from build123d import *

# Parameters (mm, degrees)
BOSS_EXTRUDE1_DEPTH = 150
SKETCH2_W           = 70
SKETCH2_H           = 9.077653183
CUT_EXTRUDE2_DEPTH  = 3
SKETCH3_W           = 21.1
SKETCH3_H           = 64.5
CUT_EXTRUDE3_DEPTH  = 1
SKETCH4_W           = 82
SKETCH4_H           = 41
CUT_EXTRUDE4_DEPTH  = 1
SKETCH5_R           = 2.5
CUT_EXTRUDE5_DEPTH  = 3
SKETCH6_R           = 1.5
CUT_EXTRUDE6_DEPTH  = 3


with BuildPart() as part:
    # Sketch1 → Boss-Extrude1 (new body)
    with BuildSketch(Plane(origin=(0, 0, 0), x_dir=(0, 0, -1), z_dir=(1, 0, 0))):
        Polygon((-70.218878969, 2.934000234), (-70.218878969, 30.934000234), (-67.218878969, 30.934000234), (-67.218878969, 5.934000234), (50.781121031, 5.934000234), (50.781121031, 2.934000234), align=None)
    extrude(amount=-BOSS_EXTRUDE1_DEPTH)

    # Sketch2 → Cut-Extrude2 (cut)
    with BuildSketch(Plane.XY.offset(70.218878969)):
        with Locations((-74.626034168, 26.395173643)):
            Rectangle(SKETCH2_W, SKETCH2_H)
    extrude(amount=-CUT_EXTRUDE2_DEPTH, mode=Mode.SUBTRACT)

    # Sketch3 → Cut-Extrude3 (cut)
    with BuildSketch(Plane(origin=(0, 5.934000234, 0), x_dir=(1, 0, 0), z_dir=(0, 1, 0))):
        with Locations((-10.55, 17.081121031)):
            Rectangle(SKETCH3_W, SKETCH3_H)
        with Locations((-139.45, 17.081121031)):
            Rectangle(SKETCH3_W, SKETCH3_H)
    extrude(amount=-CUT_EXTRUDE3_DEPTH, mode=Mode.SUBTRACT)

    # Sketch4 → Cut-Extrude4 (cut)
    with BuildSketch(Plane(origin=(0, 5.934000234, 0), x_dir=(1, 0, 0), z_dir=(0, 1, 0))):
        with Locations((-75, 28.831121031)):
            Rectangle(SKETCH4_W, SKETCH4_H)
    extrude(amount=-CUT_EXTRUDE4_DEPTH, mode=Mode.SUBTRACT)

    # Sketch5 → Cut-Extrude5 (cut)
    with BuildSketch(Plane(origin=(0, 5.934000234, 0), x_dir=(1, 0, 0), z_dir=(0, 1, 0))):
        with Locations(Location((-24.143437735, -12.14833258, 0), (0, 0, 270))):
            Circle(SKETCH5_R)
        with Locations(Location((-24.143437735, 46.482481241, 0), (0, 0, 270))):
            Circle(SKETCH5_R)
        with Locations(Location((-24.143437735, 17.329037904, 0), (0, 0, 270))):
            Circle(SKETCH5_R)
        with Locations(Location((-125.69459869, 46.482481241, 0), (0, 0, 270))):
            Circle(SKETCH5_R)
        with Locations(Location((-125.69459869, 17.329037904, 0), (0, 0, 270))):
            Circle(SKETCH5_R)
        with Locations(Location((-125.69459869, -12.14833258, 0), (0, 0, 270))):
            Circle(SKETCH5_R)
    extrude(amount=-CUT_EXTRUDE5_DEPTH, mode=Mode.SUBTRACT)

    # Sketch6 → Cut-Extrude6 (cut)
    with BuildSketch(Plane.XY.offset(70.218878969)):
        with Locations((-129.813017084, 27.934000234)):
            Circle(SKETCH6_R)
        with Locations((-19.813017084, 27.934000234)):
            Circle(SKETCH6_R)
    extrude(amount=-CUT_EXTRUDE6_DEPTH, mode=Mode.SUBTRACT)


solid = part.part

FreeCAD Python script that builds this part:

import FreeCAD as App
import Part
import Sketcher

doc = App.newDocument("Part")
params = doc.addObject("Spreadsheet::Sheet", "Params")
for row, (alias, value) in enumerate([
    ("sketch1_width", "28 mm"),
    ("sketch1_width2", "3 mm"),
    ("sketch1_height", "121 mm"),
    ("pad1_length", "150 mm"),
    ("sketch2_width", "70 mm"),
    ("pocket1_length", "3 mm"),
    ("sketch3_width", "21.1 mm"),
    ("sketch3_height", "64.5 mm"),
    ("pocket2_length", "1 mm"),
    ("sketch4_width", "82 mm"),
    ("sketch4_height", "41 mm"),
    ("pocket3_length", "1 mm"),
    ("sketch5_diameter", "5 mm"),
    ("pocket4_length", "3 mm"),
    ("sketch6_diameter", "3 mm"),
    ("pocket5_length", "3 mm"),
], start=1):
    params.set(f"A{row}", alias)
    params.set(f"B{row}", "=" + value)
    params.setAlias(f"B{row}", alias)

body = doc.addObject("PartDesign::Body", "Body")

# Sketch on YZ plane
sketch1 = body.newObject("Sketcher::SketchObject", "Sketch")
sketch1.AttachmentSupport = (doc.getObject("YZ_Plane"), [""])
sketch1.MapMode = "FlatFace"
sketch1.addGeometry([
    Part.LineSegment(App.Vector(30.9, 70.2, 0), App.Vector(2.9, 70.2, 0)),  # 0
    Part.LineSegment(App.Vector(2.9, 70.2, 0), App.Vector(2.9, -50.8, 0)),  # 1
    Part.LineSegment(App.Vector(2.9, -50.8, 0), App.Vector(5.9, -50.8, 0)),  # 2
    Part.LineSegment(App.Vector(5.9, -50.8, 0), App.Vector(5.9, 67.2, 0)),  # 3
    Part.LineSegment(App.Vector(5.9, 67.2, 0), App.Vector(30.9, 67.2, 0)),  # 4
    Part.LineSegment(App.Vector(30.9, 67.2, 0), App.Vector(30.9, 70.2, 0)),  # 5
], False)
sketch1.addConstraint([
    Sketcher.Constraint("Coincident", 0, 2, 1, 1),
    Sketcher.Constraint("Coincident", 1, 2, 2, 1),
    Sketcher.Constraint("Coincident", 2, 2, 3, 1),
    Sketcher.Constraint("Coincident", 3, 2, 4, 1),
    Sketcher.Constraint("Coincident", 4, 2, 5, 1),
    Sketcher.Constraint("Coincident", 5, 2, 0, 1),
    Sketcher.Constraint("Horizontal", 0),
    Sketcher.Constraint("Vertical", 1),
    Sketcher.Constraint("Horizontal", 2),
    Sketcher.Constraint("Vertical", 3),
    Sketcher.Constraint("Horizontal", 4),
    Sketcher.Constraint("Vertical", 5),
    Sketcher.Constraint("Equal", 2, 5),
    Sketcher.Constraint("DistanceX", 0, 2, 0, 1, 28.0),
    Sketcher.Constraint("DistanceX", 2, 1, 2, 2, 3.0),
    Sketcher.Constraint("DistanceY", 1, 2, 1, 1, 121.0),
    Sketcher.Constraint("DistanceX", -1, 1, 0, 2, 2.934),
    Sketcher.Constraint("DistanceY", -1, 1, 0, 2, 70.218879),
])
sketch1.setExpression("Constraints[13]", "Params.sketch1_width")
sketch1.setExpression("Constraints[14]", "Params.sketch1_width2")
sketch1.setExpression("Constraints[15]", "Params.sketch1_height")
pad1 = body.newObject("PartDesign::Pad", "Pad")
pad1.Profile = sketch1
pad1.setExpression("Length", "Params.pad1_length")
pad1.Reversed = True

# Sketch on XY plane
sketch2 = body.newObject("Sketcher::SketchObject", "Sketch001")
sketch2.AttachmentSupport = (doc.getObject("XY_Plane"), [""])
sketch2.MapMode = "FlatFace"
sketch2.AttachmentOffset = App.Placement(App.Vector(0, 0, 70.218879), App.Rotation())
sketch2.addGeometry([
    Part.LineSegment(App.Vector(-110, 31, 0), App.Vector(-110, 22, 0)),
    Part.LineSegment(App.Vector(-110, 22, 0), App.Vector(-40, 22, 0)),
    Part.LineSegment(App.Vector(-40, 22, 0), App.Vector(-40, 31, 0)),
    Part.LineSegment(App.Vector(-40, 31, 0), App.Vector(-110, 31, 0)),
], False)
sketch2.addConstraint([
    Sketcher.Constraint("Coincident", 0, 2, 1, 1),
    Sketcher.Constraint("Coincident", 1, 2, 2, 1),
    Sketcher.Constraint("Coincident", 2, 2, 3, 1),
    Sketcher.Constraint("Coincident", 3, 2, 0, 1),
    Sketcher.Constraint("Vertical", 0),
    Sketcher.Constraint("Horizontal", 1),
    Sketcher.Constraint("Vertical", 2),
    Sketcher.Constraint("Horizontal", 3),
    Sketcher.Constraint("DistanceX", 1, 1, 1, 2, 70.0),
    Sketcher.Constraint("DistanceY", -1, 1, 2, 2, 30.934),
    Sketcher.Constraint("DistanceY", 0, 2, 0, 1, 9.077653),
    Sketcher.Constraint("DistanceX", 0, 2, -1, 1, 109.626034),
])
sketch2.setExpression("Constraints[8]", "Params.sketch2_width")
pocket1 = body.newObject("PartDesign::Pocket", "Pocket")
pocket1.Profile = sketch2
pocket1.setExpression("Length", "Params.pocket1_length")

# Sketch on XZ plane
sketch3 = body.newObject("Sketcher::SketchObject", "Sketch002")
sketch3.AttachmentSupport = (doc.getObject("XZ_Plane"), [""])
sketch3.MapMode = "FlatFace"
sketch3.AttachmentOffset = App.Placement(App.Vector(0, 0, -5.934), App.Rotation())
sketch3.addGeometry([
    Part.LineSegment(App.Vector(-21, -49, 0), App.Vector(-21, 15, 0)),  # 0
    Part.LineSegment(App.Vector(-21, 15, 0), App.Vector(0, 15, 0)),  # 1
    Part.LineSegment(App.Vector(0, 15, 0), App.Vector(0, -49, 0)),  # 2
    Part.LineSegment(App.Vector(0, -49, 0), App.Vector(-21, -49, 0)),  # 3
    Part.LineSegment(App.Vector(-150, -49, 0), App.Vector(-150, 15, 0)),  # 4
    Part.LineSegment(App.Vector(-150, 15, 0), App.Vector(-129, 15, 0)),  # 5
    Part.LineSegment(App.Vector(-129, 15, 0), App.Vector(-129, -49, 0)),  # 6
    Part.LineSegment(App.Vector(-129, -49, 0), App.Vector(-150, -49, 0)),  # 7
], False)
sketch3.addConstraint([
    Sketcher.Constraint("Coincident", 0, 2, 1, 1),
    Sketcher.Constraint("Coincident", 1, 2, 2, 1),
    Sketcher.Constraint("Coincident", 2, 2, 3, 1),
    Sketcher.Constraint("Coincident", 3, 2, 0, 1),
    Sketcher.Constraint("Coincident", 4, 2, 5, 1),
    Sketcher.Constraint("Coincident", 5, 2, 6, 1),
    Sketcher.Constraint("Coincident", 6, 2, 7, 1),
    Sketcher.Constraint("Coincident", 7, 2, 4, 1),
    Sketcher.Constraint("Vertical", 0),
    Sketcher.Constraint("Horizontal", 1),
    Sketcher.Constraint("Vertical", 2),
    Sketcher.Constraint("Horizontal", 3),
    Sketcher.Constraint("Vertical", 4),
    Sketcher.Constraint("Horizontal", 5),
    Sketcher.Constraint("Vertical", 6),
    Sketcher.Constraint("Horizontal", 7),
    Sketcher.Constraint("PointOnObject", 1, 2, -2),
    Sketcher.Constraint("Horizontal", 1, 2, 4, 2),
    Sketcher.Constraint("Horizontal", 3, 2, 6, 2),
    Sketcher.Constraint("Equal", 3, 5),
    Sketcher.Constraint("DistanceX", 1, 1, 1, 2, 21.1),
    Sketcher.Constraint("DistanceY", 0, 1, 0, 2, 64.5),
    Sketcher.Constraint("DistanceX", 4, 2, -1, 1, 150.0),
    Sketcher.Constraint("DistanceY", -1, 1, 0, 2, 15.168879),
])
sketch3.setExpression("Constraints[20]", "Params.sketch3_width")
sketch3.setExpression("Constraints[21]", "Params.sketch3_height")
pocket2 = body.newObject("PartDesign::Pocket", "Pocket001")
pocket2.Profile = sketch3
pocket2.setExpression("Length", "Params.pocket2_length")
pocket2.Reversed = True

# Sketch on XZ plane
sketch4 = body.newObject("Sketcher::SketchObject", "Sketch003")
sketch4.AttachmentSupport = (doc.getObject("XZ_Plane"), [""])
sketch4.MapMode = "FlatFace"
sketch4.AttachmentOffset = App.Placement(App.Vector(0, 0, -5.934), App.Rotation())
sketch4.addGeometry([
    Part.LineSegment(App.Vector(-116, -49, 0), App.Vector(-116, -8, 0)),
    Part.LineSegment(App.Vector(-116, -8, 0), App.Vector(-34, -8, 0)),
    Part.LineSegment(App.Vector(-34, -8, 0), App.Vector(-34, -49, 0)),
    Part.LineSegment(App.Vector(-34, -49, 0), App.Vector(-116, -49, 0)),
], False)
sketch4.addConstraint([
    Sketcher.Constraint("Coincident", 0, 2, 1, 1),
    Sketcher.Constraint("Coincident", 1, 2, 2, 1),
    Sketcher.Constraint("Coincident", 2, 2, 3, 1),
    Sketcher.Constraint("Coincident", 3, 2, 0, 1),
    Sketcher.Constraint("Vertical", 0),
    Sketcher.Constraint("Horizontal", 1),
    Sketcher.Constraint("Vertical", 2),
    Sketcher.Constraint("Horizontal", 3),
    Sketcher.Constraint("DistanceX", 1, 1, 1, 2, 82.0),
    Sketcher.Constraint("DistanceY", 0, 1, 0, 2, 41.0),
    Sketcher.Constraint("DistanceX", 0, 2, -1, 1, 116.0),
    Sketcher.Constraint("DistanceY", 0, 2, -1, 1, 8.331121),
])
sketch4.setExpression("Constraints[8]", "Params.sketch4_width")
sketch4.setExpression("Constraints[9]", "Params.sketch4_height")
pocket3 = body.newObject("PartDesign::Pocket", "Pocket002")
pocket3.Profile = sketch4
pocket3.setExpression("Length", "Params.pocket3_length")
pocket3.Reversed = True

# Sketch on XZ plane
sketch5 = body.newObject("Sketcher::SketchObject", "Sketch004")
sketch5.AttachmentSupport = (doc.getObject("XZ_Plane"), [""])
sketch5.MapMode = "FlatFace"
sketch5.AttachmentOffset = App.Placement(App.Vector(0, 0, -5.934), App.Rotation())
sketch5.addGeometry([
    Part.Circle(App.Vector(-24.1, 12.1, 0), App.Vector(0, 0, 1), 2.5),  # 0
    Part.Circle(App.Vector(-24.1, -46.5, 0), App.Vector(0, 0, 1), 2.5),  # 1
    Part.Circle(App.Vector(-24.1, -17.3, 0), App.Vector(0, 0, 1), 2.5),  # 2
    Part.Circle(App.Vector(-125.7, -46.5, 0), App.Vector(0, 0, 1), 2.5),  # 3
    Part.Circle(App.Vector(-125.7, -17.3, 0), App.Vector(0, 0, 1), 2.5),  # 4
    Part.Circle(App.Vector(-125.7, 12.1, 0), App.Vector(0, 0, 1), 2.5),  # 5
], False)
sketch5.addConstraint([
    Sketcher.Constraint("Equal", 0, 1),
    Sketcher.Constraint("Equal", 1, 2),
    Sketcher.Constraint("Equal", 2, 3),
    Sketcher.Constraint("Equal", 3, 4),
    Sketcher.Constraint("Equal", 4, 5),
    Sketcher.Constraint("Horizontal", 1, 3, 3, 3),
    Sketcher.Constraint("Horizontal", 2, 3, 4, 3),
    Sketcher.Constraint("Horizontal", 0, 3, 5, 3),
    Sketcher.Constraint("Vertical", 0, 3, 1, 3),
    Sketcher.Constraint("Vertical", 1, 3, 2, 3),
    Sketcher.Constraint("Vertical", 3, 3, 4, 3),
    Sketcher.Constraint("Vertical", 4, 3, 5, 3),
    Sketcher.Constraint("Diameter", 0, 5.0),
    Sketcher.Constraint("DistanceX", 3, 3, -1, 1, 125.694599),
    Sketcher.Constraint("DistanceY", 1, 3, -1, 1, 46.482481),
    Sketcher.Constraint("DistanceY", 2, 3, 0, 3, 29.47737),
    Sketcher.Constraint("DistanceX", 3, 3, 1, 3, 101.551161),
    Sketcher.Constraint("DistanceY", -1, 1, 0, 3, 12.148333),
])
sketch5.setExpression("Constraints[12]", "Params.sketch5_diameter")
pocket4 = body.newObject("PartDesign::Pocket", "Pocket003")
pocket4.Profile = sketch5
pocket4.setExpression("Length", "Params.pocket4_length")
pocket4.Reversed = True

# Sketch on XY plane
sketch6 = body.newObject("Sketcher::SketchObject", "Sketch005")
sketch6.AttachmentSupport = (doc.getObject("XY_Plane"), [""])
sketch6.MapMode = "FlatFace"
sketch6.AttachmentOffset = App.Placement(App.Vector(0, 0, 70.218879), App.Rotation())
sketch6.addGeometry([
    Part.Circle(App.Vector(-129.8, 27.9, 0), App.Vector(0, 0, 1), 1.5),
    Part.Circle(App.Vector(-19.8, 27.9, 0), App.Vector(0, 0, 1), 1.5),
], False)
sketch6.addConstraint([
    Sketcher.Constraint("Equal", 0, 1),
    Sketcher.Constraint("Horizontal", 0, 3, 1, 3),
    Sketcher.Constraint("Diameter", 0, 3.0),
    Sketcher.Constraint("DistanceX", 0, 3, 1, 3, 110.0),
    Sketcher.Constraint("DistanceY", -1, 1, 0, 3, 27.934),
    Sketcher.Constraint("DistanceX", 0, 3, -1, 1, 129.813017),
])
sketch6.setExpression("Constraints[2]", "Params.sketch6_diameter")
pocket5 = body.newObject("PartDesign::Pocket", "Pocket004")
pocket5.Profile = sketch6
pocket5.setExpression("Length", "Params.pocket5_length")

doc.recompute()
